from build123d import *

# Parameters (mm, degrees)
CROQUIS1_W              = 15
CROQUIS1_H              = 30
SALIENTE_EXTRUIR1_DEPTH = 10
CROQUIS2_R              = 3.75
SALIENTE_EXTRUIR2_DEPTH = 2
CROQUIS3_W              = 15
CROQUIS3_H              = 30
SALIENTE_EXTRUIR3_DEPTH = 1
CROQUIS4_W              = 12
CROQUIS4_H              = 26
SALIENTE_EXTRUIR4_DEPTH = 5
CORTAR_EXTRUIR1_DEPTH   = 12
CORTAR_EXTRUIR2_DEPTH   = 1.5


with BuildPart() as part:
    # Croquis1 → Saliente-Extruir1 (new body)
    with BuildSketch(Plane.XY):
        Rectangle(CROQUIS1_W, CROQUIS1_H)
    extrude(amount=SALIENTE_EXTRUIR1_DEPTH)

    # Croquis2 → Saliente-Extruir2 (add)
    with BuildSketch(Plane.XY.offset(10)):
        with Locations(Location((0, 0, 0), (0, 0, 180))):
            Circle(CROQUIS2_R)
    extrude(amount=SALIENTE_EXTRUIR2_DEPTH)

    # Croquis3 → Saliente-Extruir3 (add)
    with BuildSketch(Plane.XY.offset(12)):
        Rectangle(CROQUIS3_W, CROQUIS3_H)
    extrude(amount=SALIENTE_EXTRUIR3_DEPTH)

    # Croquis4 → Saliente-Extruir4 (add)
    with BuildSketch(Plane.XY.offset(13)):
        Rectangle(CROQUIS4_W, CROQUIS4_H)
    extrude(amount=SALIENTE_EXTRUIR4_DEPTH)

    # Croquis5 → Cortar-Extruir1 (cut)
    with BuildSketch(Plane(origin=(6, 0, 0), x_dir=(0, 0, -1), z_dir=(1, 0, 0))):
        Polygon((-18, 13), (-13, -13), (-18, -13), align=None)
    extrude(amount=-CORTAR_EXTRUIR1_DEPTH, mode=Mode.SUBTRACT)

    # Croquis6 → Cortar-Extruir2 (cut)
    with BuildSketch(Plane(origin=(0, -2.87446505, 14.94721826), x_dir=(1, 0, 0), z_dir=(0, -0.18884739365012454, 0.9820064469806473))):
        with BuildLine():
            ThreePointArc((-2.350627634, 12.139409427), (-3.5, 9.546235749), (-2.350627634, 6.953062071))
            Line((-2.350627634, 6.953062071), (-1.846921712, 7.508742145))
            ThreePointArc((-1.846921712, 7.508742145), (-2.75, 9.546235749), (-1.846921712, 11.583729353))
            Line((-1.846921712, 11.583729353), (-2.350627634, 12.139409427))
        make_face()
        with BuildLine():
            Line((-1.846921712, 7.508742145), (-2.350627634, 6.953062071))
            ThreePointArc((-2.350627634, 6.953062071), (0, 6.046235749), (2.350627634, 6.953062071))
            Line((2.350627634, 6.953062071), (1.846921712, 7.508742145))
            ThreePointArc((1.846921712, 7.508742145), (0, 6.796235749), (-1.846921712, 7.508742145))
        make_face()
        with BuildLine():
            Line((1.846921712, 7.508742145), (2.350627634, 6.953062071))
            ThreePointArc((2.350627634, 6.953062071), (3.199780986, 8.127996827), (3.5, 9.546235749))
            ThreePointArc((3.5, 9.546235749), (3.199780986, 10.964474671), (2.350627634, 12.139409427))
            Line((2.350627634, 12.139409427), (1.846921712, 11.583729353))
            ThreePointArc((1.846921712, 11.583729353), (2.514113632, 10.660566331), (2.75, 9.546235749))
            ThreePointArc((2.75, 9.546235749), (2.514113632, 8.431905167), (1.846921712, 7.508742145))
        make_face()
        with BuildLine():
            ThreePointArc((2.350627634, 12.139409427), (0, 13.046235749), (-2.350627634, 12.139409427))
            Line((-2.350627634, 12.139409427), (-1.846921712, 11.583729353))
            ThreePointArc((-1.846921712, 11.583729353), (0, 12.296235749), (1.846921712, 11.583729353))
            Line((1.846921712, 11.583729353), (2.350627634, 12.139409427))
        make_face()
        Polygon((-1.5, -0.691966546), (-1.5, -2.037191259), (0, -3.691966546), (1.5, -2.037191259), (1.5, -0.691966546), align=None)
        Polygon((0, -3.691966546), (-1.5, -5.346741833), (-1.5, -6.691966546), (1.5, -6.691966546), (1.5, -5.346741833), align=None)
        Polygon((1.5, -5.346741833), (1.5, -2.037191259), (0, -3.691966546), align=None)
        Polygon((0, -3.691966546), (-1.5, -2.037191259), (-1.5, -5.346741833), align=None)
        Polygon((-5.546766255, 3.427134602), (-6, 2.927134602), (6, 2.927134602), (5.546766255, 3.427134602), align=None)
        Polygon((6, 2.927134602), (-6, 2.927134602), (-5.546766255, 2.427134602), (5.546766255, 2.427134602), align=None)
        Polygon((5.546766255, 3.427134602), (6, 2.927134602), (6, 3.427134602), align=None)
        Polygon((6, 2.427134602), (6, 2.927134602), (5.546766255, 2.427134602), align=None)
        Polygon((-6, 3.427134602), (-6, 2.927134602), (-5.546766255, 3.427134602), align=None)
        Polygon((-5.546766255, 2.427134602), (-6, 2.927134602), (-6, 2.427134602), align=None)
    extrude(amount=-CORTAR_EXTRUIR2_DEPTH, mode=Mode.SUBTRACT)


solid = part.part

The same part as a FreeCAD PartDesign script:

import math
import FreeCAD as App
import Part
import Sketcher
Q = App.Units.Quantity


def add_polygon(sketch, points):
    """Adds a closed chain of lines whose ends are joined by coincident constraints."""
    first, n = sketch.GeometryCount, len(points)
    for a, b in zip(points, points[1:] + points[:1]):
        sketch.addGeometry(Part.LineSegment(App.Vector(*a, 0), App.Vector(*b, 0)), False)
    for i in range(n):
        sketch.addConstraint(Sketcher.Constraint("Coincident", first + i, 2, first + (i + 1) % n, 1))

doc = App.newDocument("Part")
body = doc.addObject("PartDesign::Body", "Body")

# Sketch on XY plane
sketch1 = doc.addObject("Sketcher::SketchObject", "Sketch")
body.addObject(sketch1)
sketch1.AttachmentSupport = (doc.XY_Plane, [""])
sketch1.MapMode = "FlatFace"
add_polygon(sketch1, [(-8, 15), (-8, -15), (8, -15), (8, 15)])  # lines 0-3
sketch1.addConstraint([
    Sketcher.Constraint("Vertical", 0),
    Sketcher.Constraint("Horizontal", 1),
    Sketcher.Constraint("Vertical", 2),
    Sketcher.Constraint("Horizontal", 3),
    Sketcher.Constraint("Symmetric", 0, 2, 2, 2, -1, 1),
    Sketcher.Constraint("DistanceX", 1, 1, 1, 2, Q("15 mm")),
    Sketcher.Constraint("DistanceY", 0, 2, 0, 1, Q("30 mm")),
])
pad1 = doc.addObject("PartDesign::Pad", "Pad")
body.addObject(pad1)
pad1.Profile = sketch1
pad1.Length = 10

# Sketch on XY plane
sketch2 = doc.addObject("Sketcher::SketchObject", "Sketch001")
body.addObject(sketch2)
sketch2.AttachmentSupport = (doc.XY_Plane, [""])
sketch2.MapMode = "FlatFace"
sketch2.AttachmentOffset = App.Placement(App.Vector(0, 0, 10), App.Rotation())
sketch2.addGeometry(Part.Circle(App.Vector(0, 0, 0), App.Vector(0, 0, 1), 3.8), False)
sketch2.addConstraint([
    Sketcher.Constraint("Coincident", 0, 3, -1, 1),
    Sketcher.Constraint("Diameter", 0, Q("7.5 mm")),
])
pad2 = doc.addObject("PartDesign::Pad", "Pad001")
body.addObject(pad2)
pad2.Profile = sketch2
pad2.Length = 2

# Sketch on XY plane
sketch3 = doc.addObject("Sketcher::SketchObject", "Sketch002")
body.addObject(sketch3)
sketch3.AttachmentSupport = (doc.XY_Plane, [""])
sketch3.MapMode = "FlatFace"
sketch3.AttachmentOffset = App.Placement(App.Vector(0, 0, 12), App.Rotation())
add_polygon(sketch3, [(-8, 15), (-8, -15), (8, -15), (8, 15)])  # lines 0-3
sketch3.addConstraint([
    Sketcher.Constraint("Vertical", 0),
    Sketcher.Constraint("Horizontal", 1),
    Sketcher.Constraint("Vertical", 2),
    Sketcher.Constraint("Horizontal", 3),
    Sketcher.Constraint("Symmetric", 0, 2, 2, 2, -1, 1),
    Sketcher.Constraint("DistanceX", 1, 1, 1, 2, Q("15 mm")),
    Sketcher.Constraint("DistanceY", 0, 2, 0, 1, Q("30 mm")),
])
pad3 = doc.addObject("PartDesign::Pad", "Pad002")
body.addObject(pad3)
pad3.Profile = sketch3
pad3.Length = 1

# Sketch on XY plane
sketch4 = doc.addObject("Sketcher::SketchObject", "Sketch003")
body.addObject(sketch4)
sketch4.AttachmentSupport = (doc.XY_Plane, [""])
sketch4.MapMode = "FlatFace"
sketch4.AttachmentOffset = App.Placement(App.Vector(0, 0, 13), App.Rotation())
add_polygon(sketch4, [(-6, 13), (-6, -13), (6, -13), (6, 13)])  # lines 0-3
sketch4.addConstraint([
    Sketcher.Constraint("Vertical", 0),
    Sketcher.Constraint("Horizontal", 1),
    Sketcher.Constraint("Vertical", 2),
    Sketcher.Constraint("Horizontal", 3),
    Sketcher.Constraint("Symmetric", 0, 2, 2, 2, -1, 1),
    Sketcher.Constraint("DistanceX", 1, 1, 1, 2, Q("12 mm")),
    Sketcher.Constraint("DistanceY", 0, 2, 0, 1, Q("26 mm")),
])
pad4 = doc.addObject("PartDesign::Pad", "Pad003")
body.addObject(pad4)
pad4.Profile = sketch4
pad4.Length = 5

# Sketch on YZ plane
sketch5 = doc.addObject("Sketcher::SketchObject", "Sketch004")
body.addObject(sketch5)
sketch5.AttachmentSupport = (doc.YZ_Plane, [""])
sketch5.MapMode = "FlatFace"
sketch5.AttachmentOffset = App.Placement(App.Vector(0, 0, 6), App.Rotation())
add_polygon(sketch5, [(-13, 13), (13, 18), (-13, 18)])  # lines 0-2
sketch5.addConstraint([
    Sketcher.Constraint("Horizontal", 1),
    Sketcher.Constraint("Vertical", 2),
    Sketcher.Constraint("DistanceX", 1, 2, 1, 1, Q("26 mm")),
    Sketcher.Constraint("DistanceY", 2, 2, 2, 1, Q("5 mm")),
    Sketcher.Constraint("DistanceX", -1, 1, 0, 2, Q("13 mm")),
    Sketcher.Constraint("DistanceY", -1, 1, 0, 2, Q("18 mm")),
])
pocket1 = doc.addObject("PartDesign::Pocket", "Pocket")
body.addObject(pocket1)
pocket1.Profile = sketch5
pocket1.Length = 12

# Sketch on an angled plane
sketch6 = doc.addObject("Sketcher::SketchObject", "Sketch005")
body.addObject(sketch6)
sketch6.Placement = App.Placement(App.Vector(0, -2.874465, 14.947218), App.Rotation(App.Vector(1, 0, 0), App.Vector(0, 0.982006447, 0.188847394), App.Vector(0, -0.188847394, 0.982006447), "ZXY"))
sketch6.addGeometry(Part.ArcOfCircle(Part.Circle(App.Vector(0, 9.5, 0), App.Vector(0, 0, 1), 3.5), math.radians(0), math.radians(48)), False)  # 0
sketch6.addGeometry(Part.ArcOfCircle(Part.Circle(App.Vector(0, 9.5, 0), App.Vector(0, 0, 1), 3.5), math.radians(48), math.radians(132)), False)  # 1
sketch6.addGeometry(Part.ArcOfCircle(Part.Circle(App.Vector(0, 9.5, 0), App.Vector(0, 0, 1), 3.5), math.radians(132), math.radians(228)), False)  # 2
sketch6.addGeometry(Part.ArcOfCircle(Part.Circle(App.Vector(0, 9.5, 0), App.Vector(0, 0, 1), 3.5), math.radians(-132), math.radians(-48)), False)  # 3
sketch6.addGeometry(Part.ArcOfCircle(Part.Circle(App.Vector(0, 9.5, 0), App.Vector(0, 0, 1), 3.5), math.radians(-48), math.radians(0)), False)  # 4
sketch6.addGeometry(Part.ArcOfCircle(Part.Circle(App.Vector(0, 9.5, 0), App.Vector(0, 0, 1), 2.7), math.radians(132), math.radians(228)), False)  # 5
sketch6.addGeometry(Part.ArcOfCircle(Part.Circle(App.Vector(0, 9.5, 0), App.Vector(0, 0, 1), 2.7), math.radians(48), math.radians(132)), False)  # 6
sketch6.addGeometry(Part.ArcOfCircle(Part.Circle(App.Vector(0, 9.5, 0), App.Vector(0, 0, 1), 2.7), math.radians(0), math.radians(48)), False)  # 7
sketch6.addGeometry(Part.ArcOfCircle(Part.Circle(App.Vector(0, 9.5, 0), App.Vector(0, 0, 1), 2.7), math.radians(-48), math.radians(0)), False)  # 8
sketch6.addGeometry(Part.ArcOfCircle(Part.Circle(App.Vector(0, 9.5, 0), App.Vector(0, 0, 1), 2.7), math.radians(-132), math.radians(-48)), False)  # 9
add_polygon(sketch6, [(-1.5, -0.7), (-1.5, -6.7), (1.5, -6.7), (1.5, -0.7)])  # lines 10-13
add_polygon(sketch6, [(6, 2.4), (6, 3.4), (-6, 3.4), (-6, 2.4)])  # lines 14-17
sketch6.addConstraint([
    Sketcher.Constraint("Tangent", 0, 2, 1, 1),
    Sketcher.Constraint("Tangent", 1, 2, 2, 1),
    Sketcher.Constraint("Tangent", 2, 2, 3, 1),
    Sketcher.Constraint("Tangent", 3, 2, 4, 1),
    Sketcher.Constraint("Tangent", 4, 2, 0, 1),
    Sketcher.Constraint("Tangent", 5, 1, 6, 2),
    Sketcher.Constraint("Tangent", 6, 1, 7, 2),
    Sketcher.Constraint("Tangent", 7, 1, 8, 2),
    Sketcher.Constraint("Tangent", 8, 1, 9, 2),
    Sketcher.Constraint("Tangent", 9, 1, 5, 2),
    Sketcher.Constraint("Vertical", 10),
    Sketcher.Constraint("Horizontal", 11),
    Sketcher.Constraint("Vertical", 12),
    Sketcher.Constraint("Horizontal", 13),
    Sketcher.Constraint("Vertical", 14),
    Sketcher.Constraint("Horizontal", 15),
    Sketcher.Constraint("Vertical", 16),
    Sketcher.Constraint("Horizontal", 17),
    Sketcher.Constraint("Coincident", 2, 3, 0, 3),
    Sketcher.Constraint("Coincident", 5, 3, 0, 3),
    Sketcher.Constraint("Coincident", 7, 3, 0, 3),
    Sketcher.Constraint("Symmetric", 0, 2, 1, 2, -2),
    Sketcher.Constraint("Horizontal", 2, 2, 3, 2),
    Sketcher.Constraint("Horizontal", 9, 3, 4, 2),
    Sketcher.Constraint("Horizontal", 5, 1, 6, 1),
    Sketcher.Constraint("Horizontal", 4, 2, 7, 1),
    Sketcher.Constraint("Horizontal", 8, 1, 9, 1),
    Sketcher.Constraint("Vertical", 1, 2, 2, 2),
    Sketcher.Constraint("Vertical", 6, 1, 8, 1),
    Sketcher.Constraint("Radius", 0, Q("3.5 mm")),
    Sketcher.Constraint("DistanceX", 11, 1, 11, 2, Q("3 mm")),
    Sketcher.Constraint("DistanceX", 15, 2, 15, 1, Q("12 mm")),
    Sketcher.Constraint("DistanceY", 10, 2, 10, 1, Q("6 mm")),
    Sketcher.Constraint("DistanceY", 14, 1, 14, 2, Q("1 mm")),
    Sketcher.Constraint("Radius", 5, Q("2.75 mm")),
    Sketcher.Constraint("DistanceX", -1, 1, 14, 2, Q("6 mm")),
    Sketcher.Constraint("DistanceX", 10, 2, -1, 1, Q("1.5 mm")),
    Sketcher.Constraint("DistanceY", 12, 2, 14, 2, Q("4.119101 mm")),
    Sketcher.Constraint("DistanceY", 14, 2, 4, 2, Q("6.119101 mm")),
    Sketcher.Constraint("DistanceY", -1, 1, 0, 2, Q("12.139409 mm")),
    Sketcher.Constraint("DistanceX", 5, 1, -1, 1, Q("1.846922 mm")),
    Sketcher.Constraint("DistanceY", -1, 1, 5, 1, Q("11.583729 mm")),
])
pocket2 = doc.addObject("PartDesign::Pocket", "Pocket001")
body.addObject(pocket2)
pocket2.Profile = sketch6
pocket2.Length = 1.5

doc.recompute()
